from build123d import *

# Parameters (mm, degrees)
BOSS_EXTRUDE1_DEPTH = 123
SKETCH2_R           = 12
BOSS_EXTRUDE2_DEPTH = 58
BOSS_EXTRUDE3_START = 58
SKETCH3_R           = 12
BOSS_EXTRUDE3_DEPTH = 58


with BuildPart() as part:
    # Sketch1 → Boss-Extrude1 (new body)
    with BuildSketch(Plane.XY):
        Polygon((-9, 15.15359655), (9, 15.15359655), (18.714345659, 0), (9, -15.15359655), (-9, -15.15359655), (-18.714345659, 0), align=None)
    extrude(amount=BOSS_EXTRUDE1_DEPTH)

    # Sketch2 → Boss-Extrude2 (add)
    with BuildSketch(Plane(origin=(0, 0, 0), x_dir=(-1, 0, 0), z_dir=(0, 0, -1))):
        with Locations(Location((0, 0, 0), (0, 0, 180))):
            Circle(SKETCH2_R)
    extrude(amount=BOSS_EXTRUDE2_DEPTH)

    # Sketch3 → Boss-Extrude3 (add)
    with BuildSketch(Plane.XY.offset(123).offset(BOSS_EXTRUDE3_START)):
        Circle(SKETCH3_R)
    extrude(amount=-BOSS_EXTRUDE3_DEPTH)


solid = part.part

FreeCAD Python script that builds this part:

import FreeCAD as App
import Part
import Sketcher


def add_polygon(sketch, points):
    """Adds a closed chain of lines whose ends are joined by coincident constraints."""
    first, n = sketch.GeometryCount, len(points)
    for a, b in zip(points, points[1:] + points[:1]):
        sketch.addGeometry(Part.LineSegment(App.Vector(*a, 0), App.Vector(*b, 0)), False)
    for i in range(n):
        sketch.addConstraint(Sketcher.Constraint("Coincident", first + i, 2, first + (i + 1) % n, 1))

doc = App.newDocument("Part")
body = doc.addObject("PartDesign::Body", "Body")

# Sketch on XY plane
sketch1 = doc.addObject("Sketcher::SketchObject", "Sketch")
body.addObject(sketch1)
sketch1.AttachmentSupport = (doc.XY_Plane, [""])
sketch1.MapMode = "FlatFace"
add_polygon(sketch1, [(9, 15), (-9, 15), (-19, 0), (-9, -15), (9, -15), (19, 0)])  # lines 0-5
sketch1.addConstraint(Sketcher.Constraint("Horizontal", 0))
sketch1.addConstraint(Sketcher.Constraint("Horizontal", 3))
sketch1.addConstraint(Sketcher.Constraint("Symmetric", 0, 2, 3, 2, -1, 1))
sketch1.addConstraint(Sketcher.Constraint("Symmetric", 1, 2, 4, 2, -1, 1))
sketch1.addConstraint(Sketcher.Constraint("PointOnObject", 1, 2, -1))
sketch1.addConstraint(Sketcher.Constraint("Parallel", 2, 5))
sketch1.addConstraint(Sketcher.Constraint("Vertical", 0, 2, 2, 2))
sketch1.addConstraint(Sketcher.Constraint("DistanceX", 0, 2, 0, 1, 18.0))
sketch1.addConstraint(Sketcher.Constraint("Distance", 1, 18.0))
sketch1.addConstraint(Sketcher.Constraint("DistanceX", 1, 2, 4, 2, 37.428691))
pad1 = doc.addObject("PartDesign::Pad", "Pad")
body.addObject(pad1)
pad1.Profile = sketch1
pad1.Length = 123

# Sketch on XY plane
sketch2 = doc.addObject("Sketcher::SketchObject", "Sketch001")
body.addObject(sketch2)
sketch2.AttachmentSupport = (doc.XY_Plane, [""])
sketch2.MapMode = "FlatFace"
sketch2.addGeometry(Part.Circle(App.Vector(0, 0, 0), App.Vector(0, 0, 1), 12), False)
sketch2.addConstraint(Sketcher.Constraint("Coincident", 0, 3, -1, 1))
sketch2.addConstraint(Sketcher.Constraint("Diameter", 0, 24.0))
pad2 = doc.addObject("PartDesign::Pad", "Pad001")
body.addObject(pad2)
pad2.Profile = sketch2
pad2.Length = 58
pad2.Reversed = True

# Sketch on XY plane
sketch3 = doc.addObject("Sketcher::SketchObject", "Sketch002")
body.addObject(sketch3)
sketch3.AttachmentSupport = (doc.XY_Plane, [""])
sketch3.MapMode = "FlatFace"
sketch3.AttachmentOffset = App.Placement(App.Vector(0, 0, 181), App.Rotation())
sketch3.addGeometry(Part.Circle(App.Vector(0, 0, 0), App.Vector(0, 0, 1), 12), False)
sketch3.addConstraint(Sketcher.Constraint("Coincident", 0, 3, -1, 1))
sketch3.addConstraint(Sketcher.Constraint("Diameter", 0, 24.0))
pad3 = doc.addObject("PartDesign::Pad", "Pad002")
body.addObject(pad3)
pad3.Profile = sketch3
pad3.Length = 58
pad3.Reversed = True

doc.recompute()
